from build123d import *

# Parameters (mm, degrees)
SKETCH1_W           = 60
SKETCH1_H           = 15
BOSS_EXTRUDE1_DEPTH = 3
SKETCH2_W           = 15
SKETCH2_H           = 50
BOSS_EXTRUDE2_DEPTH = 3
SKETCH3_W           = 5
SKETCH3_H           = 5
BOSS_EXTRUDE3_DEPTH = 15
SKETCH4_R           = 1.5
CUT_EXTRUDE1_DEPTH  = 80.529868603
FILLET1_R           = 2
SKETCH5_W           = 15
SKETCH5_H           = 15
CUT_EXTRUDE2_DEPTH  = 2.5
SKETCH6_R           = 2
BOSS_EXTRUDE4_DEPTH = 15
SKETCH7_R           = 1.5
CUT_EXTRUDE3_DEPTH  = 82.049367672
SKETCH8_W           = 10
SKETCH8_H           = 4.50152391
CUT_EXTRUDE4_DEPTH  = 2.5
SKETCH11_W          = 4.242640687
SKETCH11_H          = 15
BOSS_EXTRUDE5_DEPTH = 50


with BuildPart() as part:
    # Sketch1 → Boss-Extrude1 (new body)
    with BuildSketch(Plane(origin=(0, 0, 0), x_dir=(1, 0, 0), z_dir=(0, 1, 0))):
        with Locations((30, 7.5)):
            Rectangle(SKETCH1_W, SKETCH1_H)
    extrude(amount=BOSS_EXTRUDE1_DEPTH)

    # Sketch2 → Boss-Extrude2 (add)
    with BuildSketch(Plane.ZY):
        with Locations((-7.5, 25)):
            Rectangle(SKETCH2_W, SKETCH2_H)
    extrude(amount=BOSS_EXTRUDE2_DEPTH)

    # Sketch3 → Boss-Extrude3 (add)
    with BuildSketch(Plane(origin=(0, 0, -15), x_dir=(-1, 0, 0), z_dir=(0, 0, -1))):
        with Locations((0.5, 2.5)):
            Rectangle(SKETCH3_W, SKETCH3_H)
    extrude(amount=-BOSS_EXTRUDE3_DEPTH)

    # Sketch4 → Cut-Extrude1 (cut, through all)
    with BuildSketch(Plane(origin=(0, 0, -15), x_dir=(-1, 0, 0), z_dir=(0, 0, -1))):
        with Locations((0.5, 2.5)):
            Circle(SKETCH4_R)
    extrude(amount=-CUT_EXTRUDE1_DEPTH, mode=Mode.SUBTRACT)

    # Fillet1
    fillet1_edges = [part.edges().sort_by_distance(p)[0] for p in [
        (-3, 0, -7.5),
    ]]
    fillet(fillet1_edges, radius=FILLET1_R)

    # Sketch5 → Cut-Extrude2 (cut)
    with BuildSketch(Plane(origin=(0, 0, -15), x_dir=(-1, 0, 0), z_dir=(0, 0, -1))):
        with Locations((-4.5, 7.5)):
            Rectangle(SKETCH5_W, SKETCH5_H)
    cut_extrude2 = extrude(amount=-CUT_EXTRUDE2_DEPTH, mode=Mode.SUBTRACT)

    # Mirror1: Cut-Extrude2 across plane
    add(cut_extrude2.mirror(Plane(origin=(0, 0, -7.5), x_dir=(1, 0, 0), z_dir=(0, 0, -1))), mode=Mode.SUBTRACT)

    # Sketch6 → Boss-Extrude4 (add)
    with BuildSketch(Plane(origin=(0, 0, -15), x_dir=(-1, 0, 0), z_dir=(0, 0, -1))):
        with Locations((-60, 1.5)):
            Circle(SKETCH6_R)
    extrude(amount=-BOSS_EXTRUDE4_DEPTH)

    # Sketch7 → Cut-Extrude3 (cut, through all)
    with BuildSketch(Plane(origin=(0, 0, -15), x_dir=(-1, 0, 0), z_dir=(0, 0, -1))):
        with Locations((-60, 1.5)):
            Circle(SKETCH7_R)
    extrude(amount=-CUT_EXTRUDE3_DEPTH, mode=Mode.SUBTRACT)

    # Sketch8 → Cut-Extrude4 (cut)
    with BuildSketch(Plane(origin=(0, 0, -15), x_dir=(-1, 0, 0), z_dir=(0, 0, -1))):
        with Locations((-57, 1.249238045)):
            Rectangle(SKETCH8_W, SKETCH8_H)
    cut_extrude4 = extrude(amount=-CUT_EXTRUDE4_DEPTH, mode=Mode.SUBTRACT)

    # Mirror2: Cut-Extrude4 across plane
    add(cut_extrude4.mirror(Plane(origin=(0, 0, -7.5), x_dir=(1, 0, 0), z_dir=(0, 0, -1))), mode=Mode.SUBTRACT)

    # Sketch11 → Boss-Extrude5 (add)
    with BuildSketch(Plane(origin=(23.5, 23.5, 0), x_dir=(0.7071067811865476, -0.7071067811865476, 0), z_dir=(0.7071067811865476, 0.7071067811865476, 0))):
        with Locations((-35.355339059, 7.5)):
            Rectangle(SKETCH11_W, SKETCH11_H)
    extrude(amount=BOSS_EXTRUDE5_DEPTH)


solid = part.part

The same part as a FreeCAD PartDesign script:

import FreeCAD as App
import Part
import Sketcher

V = App.Vector


def edges_at(feature, points):
    """Names of the edges that pass closest to the given points."""
    edges = feature.Shape.Edges
    near = lambda p: min(range(len(edges)), key=lambda i: edges[i].distToShape(Part.Vertex(*p))[0])
    return sorted({f"Edge{near(p) + 1}" for p in points})


def add_polygon(sketch, points):
    """Adds a closed chain of lines whose ends are joined by coincident constraints."""
    first, n = sketch.GeometryCount, len(points)
    for a, b in zip(points, points[1:] + points[:1]):
        sketch.addGeometry(Part.LineSegment(App.Vector(*a, 0), App.Vector(*b, 0)), False)
    for i in range(n):
        sketch.addConstraint(Sketcher.Constraint("Coincident", first + i, 2, first + (i + 1) % n, 1))

doc = App.newDocument("Part")
body = doc.addObject("PartDesign::Body", "Body")

sketch1 = body.newObject("Sketcher::SketchObject", "Sketch")
sketch1.AttachmentSupport = (doc.getObject("XZ_Plane"), [""])
sketch1.MapMode = "FlatFace"
add_polygon(sketch1, [(0, -15), (0, 0), (60, 0), (60, -15)])
sketch1.addConstraint([
    Sketcher.Constraint("Vertical", 0),
    Sketcher.Constraint("Horizontal", 1),
    Sketcher.Constraint("Vertical", 2),
    Sketcher.Constraint("Horizontal", 3),
    Sketcher.Constraint("Coincident", 0, 2, -1, 1),
    Sketcher.Constraint("DistanceX", 1, 1, 1, 2, 60.0),
    Sketcher.Constraint("DistanceY", 0, 1, 0, 2, 15.0),
])
pad1 = body.newObject("PartDesign::Pad", "Pad")
pad1.Profile = sketch1
pad1.Length = 3
pad1.Reversed = True

sketch2 = body.newObject("Sketcher::SketchObject", "Sketch001")
sketch2.AttachmentSupport = (doc.getObject("YZ_Plane"), [""])
sketch2.MapMode = "FlatFace"
add_polygon(sketch2, [(50, -15), (0, -15), (0, 0), (50, 0)])
sketch2.addConstraint([
    Sketcher.Constraint("Horizontal", 0),
    Sketcher.Constraint("Vertical", 1),
    Sketcher.Constraint("Horizontal", 2),
    Sketcher.Constraint("Vertical", 3),
    Sketcher.Constraint("Coincident", 1, 2, -1, 1),
    Sketcher.Constraint("DistanceX", 0, 2, 0, 1, 50.0),
    Sketcher.Constraint("DistanceY", 1, 1, 1, 2, 15.0),
])
pad2 = body.newObject("PartDesign::Pad", "Pad001")
pad2.Profile = sketch2
pad2.Length = 3
pad2.Reversed = True

sketch3 = body.newObject("Sketcher::SketchObject", "Sketch002")
sketch3.AttachmentSupport = (doc.getObject("XY_Plane"), [""])
sketch3.MapMode = "FlatFace"
sketch3.AttachmentOffset = App.Placement(V(0, 0, -15), App.Rotation())
add_polygon(sketch3, [(2, 5), (2, 0), (-3, 0), (-3, 5)])
sketch3.addConstraint([
    Sketcher.Constraint("Vertical", 0),
    Sketcher.Constraint("Horizontal", 1),
    Sketcher.Constraint("Vertical", 2),
    Sketcher.Constraint("Horizontal", 3),
    Sketcher.Constraint("PointOnObject", 0, 2, -1),
    Sketcher.Constraint("Equal", 3, 0),
    Sketcher.Constraint("DistanceX", 1, 2, 1, 1, 5.0),
    Sketcher.Constraint("DistanceX", -1, 1, 0, 2, 2.0),
])
pad3 = body.newObject("PartDesign::Pad", "Pad002")
pad3.Profile = sketch3
pad3.Length = 15

sketch4 = body.newObject("Sketcher::SketchObject", "Sketch003")
sketch4.AttachmentSupport = (doc.getObject("XY_Plane"), [""])
sketch4.MapMode = "FlatFace"
sketch4.AttachmentOffset = App.Placement(V(0, 0, -15), App.Rotation())
sketch4.addGeometry(Part.Circle(V(-0.5, 2.5, 0), V(0, 0, 1), 1.5), False)
sketch4.addConstraint([
    Sketcher.Constraint("Diameter", 0, 3.0),
    Sketcher.Constraint("DistanceX", 0, 3, -1, 1, 0.5),
    Sketcher.Constraint("DistanceY", -1, 1, 0, 3, 2.5),
])
pocket1 = body.newObject("PartDesign::Pocket", "Pocket")
pocket1.Profile = sketch4
pocket1.Type = "ThroughAll"
pocket1.Reversed = True
doc.recompute()

fillet = body.newObject("PartDesign::Fillet", "Fillet")
fillet.Base = (pocket1, edges_at(pocket1, [(-3, 0, -7.5)]))
fillet.Radius = 2

sketch5 = body.newObject("Sketcher::SketchObject", "Sketch004")
sketch5.AttachmentSupport = (doc.getObject("XY_Plane"), [""])
sketch5.MapMode = "FlatFace"
sketch5.AttachmentOffset = App.Placement(V(0, 0, -15), App.Rotation())
add_polygon(sketch5, [(12, 15), (12, 0), (-3, 0), (-3, 15)])
sketch5.addConstraint([
    Sketcher.Constraint("Vertical", 0),
    Sketcher.Constraint("Horizontal", 1),
    Sketcher.Constraint("Vertical", 2),
    Sketcher.Constraint("Horizontal", 3),
    Sketcher.Constraint("PointOnObject", 0, 2, -1),
    Sketcher.Constraint("Equal", 3, 0),
    Sketcher.Constraint("DistanceX", 1, 2, 1, 1, 15.0),
    Sketcher.Constraint("DistanceX", -1, 1, 0, 2, 12.0),
])
pocket2 = body.newObject("PartDesign::Pocket", "Pocket001")
pocket2.Profile = sketch5
pocket2.Length = 2.5
pocket2.Reversed = True
doc.recompute()

datumplane = body.newObject("PartDesign::Plane", "DatumPlane")
datumplane.AttachmentSupport = (doc.getObject("XY_Plane"), [""])
datumplane.MapMode = "FlatFace"
datumplane.AttachmentOffset = App.Placement(V(0, 0, -7.5), App.Rotation())
mirrored = body.newObject("PartDesign::Mirrored", "Mirrored")
mirrored.Originals = [pocket2]
mirrored.MirrorPlane = (datumplane, [""])
body.Tip = mirrored

sketch6 = body.newObject("Sketcher::SketchObject", "Sketch005")
sketch6.AttachmentSupport = (doc.getObject("XY_Plane"), [""])
sketch6.MapMode = "FlatFace"
sketch6.AttachmentOffset = App.Placement(V(0, 0, -15), App.Rotation())
sketch6.addGeometry(Part.Circle(V(60, 1.5, 0), V(0, 0, 1), 2), False)
sketch6.addConstraint([
    Sketcher.Constraint("Diameter", 0, 4.0),
    Sketcher.Constraint("DistanceX", -1, 1, 0, 3, 60.0),
    Sketcher.Constraint("DistanceY", -1, 1, 0, 3, 1.5),
])
pad4 = body.newObject("PartDesign::Pad", "Pad003")
pad4.Profile = sketch6
pad4.Length = 15

sketch7 = body.newObject("Sketcher::SketchObject", "Sketch006")
sketch7.AttachmentSupport = (doc.getObject("XY_Plane"), [""])
sketch7.MapMode = "FlatFace"
sketch7.AttachmentOffset = App.Placement(V(0, 0, -15), App.Rotation())
sketch7.addGeometry(Part.Circle(V(60, 1.5, 0), V(0, 0, 1), 1.5), False)
sketch7.addConstraint([
    Sketcher.Constraint("Diameter", 0, 3.0),
    Sketcher.Constraint("DistanceX", -1, 1, 0, 3, 60.0),
    Sketcher.Constraint("DistanceY", -1, 1, 0, 3, 1.5),
])
pocket3 = body.newObject("PartDesign::Pocket", "Pocket002")
pocket3.Profile = sketch7
pocket3.Type = "ThroughAll"
pocket3.Reversed = True

sketch8 = body.newObject("Sketcher::SketchObject", "Sketch007")
sketch8.AttachmentSupport = (doc.getObject("XY_Plane"), [""])
sketch8.MapMode = "FlatFace"
sketch8.AttachmentOffset = App.Placement(V(0, 0, -15), App.Rotation())
add_polygon(sketch8, [(62, 3.5), (62, -1), (52, -1), (52, 3.5)])
sketch8.addConstraint([
    Sketcher.Constraint("Vertical", 0),
    Sketcher.Constraint("Horizontal", 1),
    Sketcher.Constraint("Vertical", 2),
    Sketcher.Constraint("Horizontal", 3),
    Sketcher.Constraint("DistanceX", 1, 2, 1, 1, 10.0),
    Sketcher.Constraint("DistanceX", -1, 1, 0, 2, 62.0),
    Sketcher.Constraint("DistanceY", -1, 1, 2, 2, 3.5),
    Sketcher.Constraint("DistanceY", 0, 2, 0, 1, 4.501524),
])
pocket4 = body.newObject("PartDesign::Pocket", "Pocket003")
pocket4.Profile = sketch8
pocket4.Length = 2.5
pocket4.Reversed = True
doc.recompute()

datumplane2 = body.newObject("PartDesign::Plane", "DatumPlane001")
datumplane2.AttachmentSupport = (doc.getObject("XY_Plane"), [""])
datumplane2.MapMode = "FlatFace"
datumplane2.AttachmentOffset = App.Placement(V(0, 0, -7.5), App.Rotation())
mirrored2 = body.newObject("PartDesign::Mirrored", "Mirrored001")
mirrored2.Originals = [pocket4]
mirrored2.MirrorPlane = (datumplane2, [""])
body.Tip = mirrored2

sketch9 = body.newObject("Sketcher::SketchObject", "Sketch008")
sketch9.Placement = App.Placement(V(23.5, 23.5, 0), App.Rotation(V(0.707106781, -0.707106781, 0), V(0, 0, -0.999999999), V(0.707106781, 0.707106781, 0), "ZXY"))
add_polygon(sketch9, [(-37.5, 15), (-37.5, 0), (-33.2, 0), (-33.2, 15)])
sketch9.addConstraint([
    Sketcher.Constraint("Vertical", 0),
    Sketcher.Constraint("Horizontal", 1),
    Sketcher.Constraint("Vertical", 2),
    Sketcher.Constraint("Horizontal", 3),
    Sketcher.Constraint("PointOnObject", 0, 2, -1),
    Sketcher.Constraint("DistanceY", 0, 2, 0, 1, 15.0),
    Sketcher.Constraint("DistanceX", 1, 1, 1, 2, 4.242641),
    Sketcher.Constraint("DistanceX", 0, 2, -1, 1, 37.476659),
])
pad5 = body.newObject("PartDesign::Pad", "Pad004")
pad5.Profile = sketch9
pad5.Length = 50

doc.recompute()
